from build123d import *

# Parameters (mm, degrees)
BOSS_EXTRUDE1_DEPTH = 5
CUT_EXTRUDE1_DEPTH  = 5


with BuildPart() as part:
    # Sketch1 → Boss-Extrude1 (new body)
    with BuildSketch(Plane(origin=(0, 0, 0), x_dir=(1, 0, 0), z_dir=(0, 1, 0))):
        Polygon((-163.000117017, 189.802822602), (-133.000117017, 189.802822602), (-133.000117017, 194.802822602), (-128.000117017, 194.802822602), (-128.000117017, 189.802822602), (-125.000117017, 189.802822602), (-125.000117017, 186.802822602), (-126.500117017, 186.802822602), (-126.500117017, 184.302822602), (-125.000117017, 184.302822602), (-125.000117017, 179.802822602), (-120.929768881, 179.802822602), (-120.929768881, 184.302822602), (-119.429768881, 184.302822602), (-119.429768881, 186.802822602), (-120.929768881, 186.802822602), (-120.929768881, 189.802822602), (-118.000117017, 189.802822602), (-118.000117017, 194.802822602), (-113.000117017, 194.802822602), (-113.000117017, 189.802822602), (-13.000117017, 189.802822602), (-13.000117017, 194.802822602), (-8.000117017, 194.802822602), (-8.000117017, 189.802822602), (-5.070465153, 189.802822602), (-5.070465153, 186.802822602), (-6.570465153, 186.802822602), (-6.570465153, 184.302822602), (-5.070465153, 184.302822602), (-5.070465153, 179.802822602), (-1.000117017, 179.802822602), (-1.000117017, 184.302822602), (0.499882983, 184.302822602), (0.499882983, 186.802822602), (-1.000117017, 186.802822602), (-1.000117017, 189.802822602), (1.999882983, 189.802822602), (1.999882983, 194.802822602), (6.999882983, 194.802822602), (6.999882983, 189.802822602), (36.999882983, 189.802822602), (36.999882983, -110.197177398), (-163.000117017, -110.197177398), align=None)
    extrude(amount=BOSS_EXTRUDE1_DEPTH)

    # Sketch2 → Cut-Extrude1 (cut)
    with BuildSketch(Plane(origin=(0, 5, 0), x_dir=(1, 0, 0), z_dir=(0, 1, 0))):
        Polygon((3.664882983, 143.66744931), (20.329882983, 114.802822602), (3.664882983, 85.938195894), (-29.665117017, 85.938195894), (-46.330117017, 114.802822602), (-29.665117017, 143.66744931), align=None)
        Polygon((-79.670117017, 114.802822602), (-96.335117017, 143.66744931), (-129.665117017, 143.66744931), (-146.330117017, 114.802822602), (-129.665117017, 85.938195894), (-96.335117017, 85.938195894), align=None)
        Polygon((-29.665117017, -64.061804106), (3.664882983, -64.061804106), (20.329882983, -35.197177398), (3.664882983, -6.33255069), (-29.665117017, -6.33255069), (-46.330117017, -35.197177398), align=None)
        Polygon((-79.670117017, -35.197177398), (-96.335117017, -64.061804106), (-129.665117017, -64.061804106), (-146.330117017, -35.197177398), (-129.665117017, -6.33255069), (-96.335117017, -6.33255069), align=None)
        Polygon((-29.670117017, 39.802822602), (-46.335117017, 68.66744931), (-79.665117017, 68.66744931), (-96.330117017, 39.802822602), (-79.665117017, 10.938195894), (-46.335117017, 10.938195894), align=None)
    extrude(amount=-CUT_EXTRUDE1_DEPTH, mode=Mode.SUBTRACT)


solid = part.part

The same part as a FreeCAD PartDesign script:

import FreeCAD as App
import Part
import Sketcher

V = App.Vector
Q = App.Units.Quantity


def add_polygon(sketch, points):
    """Adds a closed chain of lines whose ends are joined by coincident constraints."""
    first, n = sketch.GeometryCount, len(points)
    for a, b in zip(points, points[1:] + points[:1]):
        sketch.addGeometry(Part.LineSegment(App.Vector(*a, 0), App.Vector(*b, 0)), False)
    for i in range(n):
        sketch.addConstraint(Sketcher.Constraint("Coincident", first + i, 2, first + (i + 1) % n, 1))

doc = App.newDocument("Part")
body = doc.addObject("PartDesign::Body", "Body")

# Sketch on XZ plane
sketch1 = body.newObject("Sketcher::SketchObject", "Sketch")
sketch1.AttachmentSupport = (doc.getObject("XZ_Plane"), [""])
sketch1.MapMode = "FlatFace"
add_polygon(sketch1, [(-133, -189.8), (-163, -189.8), (-163, 110.2), (37, 110.2), (37, -189.8), (7, -189.8), (7, -194.8), (2, -194.8), (2, -189.8), (-1, -189.8), (-1, -186.8), (0.5, -186.8), (0.5, -184.3), (-1, -184.3), (-1, -179.8), (-5.1, -179.8), (-5.1, -184.3), (-6.6, -184.3), (-6.6, -186.8), (-5.1, -186.8), (-5.1, -189.8), (-8, -189.8), (-8, -194.8), (-13, -194.8), (-13, -189.8), (-113, -189.8), (-113, -194.8), (-118, -194.8), (-118, -189.8), (-120.9, -189.8), (-120.9, -186.8), (-119.4, -186.8), (-119.4, -184.3), (-120.9, -184.3), (-120.9, -179.8), (-125, -179.8), (-125, -184.3), (-126.5, -184.3), (-126.5, -186.8), (-125, -186.8), (-125, -189.8), (-128, -189.8), (-128, -194.8), (-133, -194.8)])  # lines 0-43
sketch1.addConstraint(Sketcher.Constraint("Horizontal", 0))
sketch1.addConstraint(Sketcher.Constraint("Vertical", 1))
sketch1.addConstraint(Sketcher.Constraint("Horizontal", 2))
sketch1.addConstraint(Sketcher.Constraint("Vertical", 3))
sketch1.addConstraint(Sketcher.Constraint("Horizontal", 4))
sketch1.addConstraint(Sketcher.Constraint("Vertical", 5))
sketch1.addConstraint(Sketcher.Constraint("Horizontal", 6))
sketch1.addConstraint(Sketcher.Constraint("Vertical", 7))
sketch1.addConstraint(Sketcher.Constraint("Horizontal", 8))
sketch1.addConstraint(Sketcher.Constraint("Vertical", 9))
sketch1.addConstraint(Sketcher.Constraint("Horizontal", 10))
sketch1.addConstraint(Sketcher.Constraint("Vertical", 11))
sketch1.addConstraint(Sketcher.Constraint("Horizontal", 12))
sketch1.addConstraint(Sketcher.Constraint("Vertical", 13))
sketch1.addConstraint(Sketcher.Constraint("Horizontal", 14))
sketch1.addConstraint(Sketcher.Constraint("Vertical", 15))
sketch1.addConstraint(Sketcher.Constraint("Horizontal", 16))
sketch1.addConstraint(Sketcher.Constraint("Vertical", 17))
sketch1.addConstraint(Sketcher.Constraint("Horizontal", 18))
sketch1.addConstraint(Sketcher.Constraint("Vertical", 19))
sketch1.addConstraint(Sketcher.Constraint("Horizontal", 20))
sketch1.addConstraint(Sketcher.Constraint("Vertical", 21))
sketch1.addConstraint(Sketcher.Constraint("Horizontal", 22))
sketch1.addConstraint(Sketcher.Constraint("Vertical", 23))
sketch1.addConstraint(Sketcher.Constraint("Horizontal", 24))
sketch1.addConstraint(Sketcher.Constraint("Vertical", 25))
sketch1.addConstraint(Sketcher.Constraint("Horizontal", 26))
sketch1.addConstraint(Sketcher.Constraint("Vertical", 27))
sketch1.addConstraint(Sketcher.Constraint("Horizontal", 28))
sketch1.addConstraint(Sketcher.Constraint("Vertical", 29))
sketch1.addConstraint(Sketcher.Constraint("Horizontal", 30))
sketch1.addConstraint(Sketcher.Constraint("Vertical", 31))
sketch1.addConstraint(Sketcher.Constraint("Horizontal", 32))
sketch1.addConstraint(Sketcher.Constraint("Vertical", 33))
sketch1.addConstraint(Sketcher.Constraint("Horizontal", 34))
sketch1.addConstraint(Sketcher.Constraint("Vertical", 35))
sketch1.addConstraint(Sketcher.Constraint("Horizontal", 36))
sketch1.addConstraint(Sketcher.Constraint("Vertical", 37))
sketch1.addConstraint(Sketcher.Constraint("Horizontal", 38))
sketch1.addConstraint(Sketcher.Constraint("Vertical", 39))
sketch1.addConstraint(Sketcher.Constraint("Horizontal", 40))
sketch1.addConstraint(Sketcher.Constraint("Vertical", 41))
sketch1.addConstraint(Sketcher.Constraint("Horizontal", 42))
sketch1.addConstraint(Sketcher.Constraint("Vertical", 43))
sketch1.addConstraint(Sketcher.Constraint("Horizontal", 0, 2, 3, 2))
sketch1.addConstraint(Sketcher.Constraint("Horizontal", 4, 2, 7, 2))
sketch1.addConstraint(Sketcher.Constraint("Horizontal", 12, 2, 15, 2))
sketch1.addConstraint(Sketcher.Constraint("Horizontal", 10, 2, 17, 2))
sketch1.addConstraint(Sketcher.Constraint("Horizontal", 8, 2, 19, 2))
sketch1.addConstraint(Sketcher.Constraint("Horizontal", 6, 2, 21, 2))
sketch1.addConstraint(Sketcher.Constraint("Horizontal", 20, 2, 23, 2))
sketch1.addConstraint(Sketcher.Constraint("Horizontal", 22, 2, 25, 2))
sketch1.addConstraint(Sketcher.Constraint("Horizontal", 24, 2, 27, 2))
sketch1.addConstraint(Sketcher.Constraint("Horizontal", 18, 2, 29, 2))
sketch1.addConstraint(Sketcher.Constraint("Horizontal", 16, 2, 31, 2))
sketch1.addConstraint(Sketcher.Constraint("Horizontal", 14, 2, 33, 2))
sketch1.addConstraint(Sketcher.Constraint("Horizontal", 32, 2, 35, 2))
sketch1.addConstraint(Sketcher.Constraint("Horizontal", 30, 2, 37, 2))
sketch1.addConstraint(Sketcher.Constraint("Horizontal", 28, 2, 39, 2))
sketch1.addConstraint(Sketcher.Constraint("Horizontal", 26, 2, 41, 2))
sketch1.addConstraint(Sketcher.Constraint("Vertical", 9, 2, 12, 2))
sketch1.addConstraint(Sketcher.Constraint("Vertical", 15, 2, 18, 2))
sketch1.addConstraint(Sketcher.Constraint("Vertical", 29, 2, 32, 2))
sketch1.addConstraint(Sketcher.Constraint("Vertical", 35, 2, 38, 2))
sketch1.addConstraint(Sketcher.Constraint("Equal", 0, 4))
sketch1.addConstraint(Sketcher.Constraint("Equal", 12, 16))
sketch1.addConstraint(Sketcher.Constraint("Equal", 6, 22))
sketch1.addConstraint(Sketcher.Constraint("Equal", 22, 26))
sketch1.addConstraint(Sketcher.Constraint("Equal", 20, 28))
sketch1.addConstraint(Sketcher.Constraint("Equal", 18, 30))
sketch1.addConstraint(Sketcher.Constraint("Equal", 14, 34))
sketch1.addConstraint(Sketcher.Constraint("Equal", 32, 36))
sketch1.addConstraint(Sketcher.Constraint("Equal", 8, 40))
sketch1.addConstraint(Sketcher.Constraint("Equal", 26, 42))
sketch1.addConstraint(Sketcher.Constraint("Equal", 42, 5))
sketch1.addConstraint(Sketcher.Constraint("Equal", 40, 9))
sketch1.addConstraint(Sketcher.Constraint("DistanceX", 0, 2, 0, 1, Q("30 mm")))
sketch1.addConstraint(Sketcher.Constraint("DistanceX", 2, 1, 2, 2, Q("200 mm")))
sketch1.addConstraint(Sketcher.Constraint("DistanceX", 6, 2, 6, 1, Q("5 mm")))
sketch1.addConstraint(Sketcher.Constraint("DistanceX", 8, 2, 8, 1, Q("3 mm")))
sketch1.addConstraint(Sketcher.Constraint("DistanceX", 24, 2, 24, 1, Q("100 mm")))
sketch1.addConstraint(Sketcher.Constraint("DistanceY", 1, 1, 1, 2, Q("300 mm")))
sketch1.addConstraint(Sketcher.Constraint("DistanceX", 10, 1, 10, 2, Q("1.5 mm")))
sketch1.addConstraint(Sketcher.Constraint("DistanceY", 11, 1, 11, 2, Q("2.5 mm")))
sketch1.addConstraint(Sketcher.Constraint("DistanceY", 13, 1, 13, 2, Q("4.5 mm")))
sketch1.addConstraint(Sketcher.Constraint("DistanceX", 14, 2, 14, 1, Q("4.070348 mm")))
sketch1.addConstraint(Sketcher.Constraint("DistanceX", 28, 2, -1, 1, Q("120.929769 mm")))
sketch1.addConstraint(Sketcher.Constraint("DistanceY", 0, 2, -1, 1, Q("189.802823 mm")))
pad1 = body.newObject("PartDesign::Pad", "Pad")
pad1.Profile = sketch1
pad1.Length = 5
pad1.Reversed = True

# Sketch on XZ plane
sketch2 = body.newObject("Sketcher::SketchObject", "Sketch001")
sketch2.AttachmentSupport = (doc.getObject("XZ_Plane"), [""])
sketch2.MapMode = "FlatFace"
sketch2.AttachmentOffset = App.Placement(V(0, 0, -5), App.Rotation())
add_polygon(sketch2, [(20, -115), (4, -144), (-30, -144), (-46, -115), (-30, -86), (4, -86)])  # lines 0-5
add_polygon(sketch2, [(-80, -115), (-96, -144), (-130, -144), (-146, -115), (-130, -86), (-96, -86)])  # lines 6-11
add_polygon(sketch2, [(-30, 64), (4, 64), (20, 35), (4, 6), (-30, 6), (-46, 35)])  # lines 12-17
add_polygon(sketch2, [(-96, 64), (-80, 35), (-96, 6), (-130, 6), (-146, 35), (-130, 64)])  # lines 18-23
add_polygon(sketch2, [(-30, -40), (-46, -69), (-80, -69), (-96, -40), (-80, -11), (-46, -11)])  # lines 24-29
sketch2.addConstraint(Sketcher.Constraint("Horizontal", 1))
sketch2.addConstraint(Sketcher.Constraint("Horizontal", 4))
sketch2.addConstraint(Sketcher.Constraint("Horizontal", 7))
sketch2.addConstraint(Sketcher.Constraint("Horizontal", 10))
sketch2.addConstraint(Sketcher.Constraint("Horizontal", 12))
sketch2.addConstraint(Sketcher.Constraint("Horizontal", 15))
sketch2.addConstraint(Sketcher.Constraint("Horizontal", 20))
sketch2.addConstraint(Sketcher.Constraint("Horizontal", 23))
sketch2.addConstraint(Sketcher.Constraint("Horizontal", 25))
sketch2.addConstraint(Sketcher.Constraint("Horizontal", 28))
sketch2.addConstraint(Sketcher.Constraint("Parallel", 0, 3))
sketch2.addConstraint(Sketcher.Constraint("Parallel", 2, 5))
sketch2.addConstraint(Sketcher.Constraint("Parallel", 3, 6))
sketch2.addConstraint(Sketcher.Constraint("Parallel", 5, 8))
sketch2.addConstraint(Sketcher.Constraint("Parallel", 6, 9))
sketch2.addConstraint(Sketcher.Constraint("Parallel", 8, 11))
sketch2.addConstraint(Sketcher.Constraint("Parallel", 11, 13))
sketch2.addConstraint(Sketcher.Constraint("Parallel", 9, 14))
sketch2.addConstraint(Sketcher.Constraint("Parallel", 13, 16))
sketch2.addConstraint(Sketcher.Constraint("Parallel", 14, 17))
sketch2.addConstraint(Sketcher.Constraint("Parallel", 16, 18))
sketch2.addConstraint(Sketcher.Constraint("Parallel", 17, 19))
sketch2.addConstraint(Sketcher.Constraint("Parallel", 18, 21))
sketch2.addConstraint(Sketcher.Constraint("Parallel", 19, 22))
sketch2.addConstraint(Sketcher.Constraint("Parallel", 22, 24))
sketch2.addConstraint(Sketcher.Constraint("Parallel", 21, 26))
sketch2.addConstraint(Sketcher.Constraint("Parallel", 24, 27))
sketch2.addConstraint(Sketcher.Constraint("Parallel", 26, 29))
sketch2.addConstraint(Sketcher.Constraint("Horizontal", 2, 2, 5, 2))
sketch2.addConstraint(Sketcher.Constraint("Horizontal", 1, 2, 6, 2))
sketch2.addConstraint(Sketcher.Constraint("Horizontal", 5, 2, 8, 2))
sketch2.addConstraint(Sketcher.Constraint("Horizontal", 4, 2, 9, 2))
sketch2.addConstraint(Sketcher.Constraint("Horizontal", 8, 2, 11, 2))
sketch2.addConstraint(Sketcher.Constraint("Horizontal", 13, 2, 16, 2))
sketch2.addConstraint(Sketcher.Constraint("Horizontal", 16, 2, 18, 2))
sketch2.addConstraint(Sketcher.Constraint("Horizontal", 15, 2, 19, 2))
sketch2.addConstraint(Sketcher.Constraint("Horizontal", 18, 2, 21, 2))
sketch2.addConstraint(Sketcher.Constraint("Horizontal", 17, 2, 22, 2))
sketch2.addConstraint(Sketcher.Constraint("Horizontal", 26, 2, 29, 2))
sketch2.addConstraint(Sketcher.Constraint("Vertical", 1, 2, 3, 2))
sketch2.addConstraint(Sketcher.Constraint("Vertical", 0, 2, 4, 2))
sketch2.addConstraint(Sketcher.Constraint("Vertical", 4, 2, 12, 2))
sketch2.addConstraint(Sketcher.Constraint("Vertical", 5, 2, 13, 2))
sketch2.addConstraint(Sketcher.Constraint("Vertical", 12, 2, 14, 2))
sketch2.addConstraint(Sketcher.Constraint("Vertical", 3, 2, 15, 2))
sketch2.addConstraint(Sketcher.Constraint("Vertical", 11, 2, 18, 2))
sketch2.addConstraint(Sketcher.Constraint("Vertical", 9, 2, 20, 2))
sketch2.addConstraint(Sketcher.Constraint("Vertical", 25, 2, 27, 2))
sketch2.addConstraint(Sketcher.Constraint("Equal", 4, 7))
sketch2.addConstraint(Sketcher.Constraint("Equal", 23, 25))
sketch2.addConstraint(Sketcher.Constraint("Equal", 22, 24))
sketch2.addConstraint(Sketcher.Constraint("Angle", 0, Q("-120 deg")))
sketch2.addConstraint(Sketcher.Constraint("DistanceX", 6, 2, 0, 2, Q("100 mm")))
sketch2.addConstraint(Sketcher.Constraint("DistanceY", 4, 2, 12, 2, Q("150 mm")))
sketch2.addConstraint(Sketcher.Constraint("DistanceX", 24, 2, 4, 2, Q("50 mm")))
sketch2.addConstraint(Sketcher.Constraint("DistanceX", 1, 2, 1, 1, Q("33.33 mm")))
sketch2.addConstraint(Sketcher.Constraint("Distance", 0, Q("33.33 mm")))
sketch2.addConstraint(Sketcher.Constraint("DistanceY", 0, 2, -1, 1, Q("143.667449 mm")))
sketch2.addConstraint(Sketcher.Constraint("DistanceY", 24, 2, -1, 1, Q("68.667449 mm")))
sketch2.addConstraint(Sketcher.Constraint("DistanceX", -1, 1, 0, 2, Q("3.664883 mm")))
pocket1 = body.newObject("PartDesign::Pocket", "Pocket")
pocket1.Profile = sketch2
pocket1.Length = 5
pocket1.Reversed = True

doc.recompute()
